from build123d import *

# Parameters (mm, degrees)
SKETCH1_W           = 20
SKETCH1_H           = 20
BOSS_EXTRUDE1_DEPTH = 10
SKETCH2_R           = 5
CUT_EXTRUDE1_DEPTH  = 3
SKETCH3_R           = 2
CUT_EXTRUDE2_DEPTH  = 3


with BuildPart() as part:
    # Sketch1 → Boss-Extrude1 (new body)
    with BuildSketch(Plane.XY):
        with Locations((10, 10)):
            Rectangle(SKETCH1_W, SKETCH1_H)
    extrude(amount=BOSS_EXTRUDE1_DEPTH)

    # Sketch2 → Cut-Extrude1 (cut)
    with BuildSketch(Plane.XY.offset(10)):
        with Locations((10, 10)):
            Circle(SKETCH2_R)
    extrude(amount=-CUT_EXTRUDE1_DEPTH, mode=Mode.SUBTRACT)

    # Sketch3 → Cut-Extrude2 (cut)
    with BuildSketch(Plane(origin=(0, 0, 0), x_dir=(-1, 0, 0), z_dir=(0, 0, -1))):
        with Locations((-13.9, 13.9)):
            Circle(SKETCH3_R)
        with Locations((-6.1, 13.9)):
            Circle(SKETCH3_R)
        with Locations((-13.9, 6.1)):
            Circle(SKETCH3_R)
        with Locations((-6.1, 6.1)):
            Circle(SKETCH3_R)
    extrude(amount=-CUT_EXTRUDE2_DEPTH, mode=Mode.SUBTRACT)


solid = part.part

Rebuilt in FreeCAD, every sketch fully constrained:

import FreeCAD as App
import Part
import Sketcher
from FreeCAD import Vector
Q = App.Units.Quantity


def add_polygon(sketch, points):
    """Adds a closed chain of lines whose ends are joined by coincident constraints."""
    first, n = sketch.GeometryCount, len(points)
    for a, b in zip(points, points[1:] + points[:1]):
        sketch.addGeometry(Part.LineSegment(App.Vector(*a, 0), App.Vector(*b, 0)), False)
    for i in range(n):
        sketch.addConstraint(Sketcher.Constraint("Coincident", first + i, 2, first + (i + 1) % n, 1))

doc = App.newDocument("Part")
body = doc.addObject("PartDesign::Body", "Body")

sketch1 = body.newObject("Sketcher::SketchObject", "Sketch")
sketch1.AttachmentSupport = (doc.getObject("XY_Plane"), [""])
sketch1.MapMode = "FlatFace"
add_polygon(sketch1, [(0, 20), (0, 0), (20, 0), (20, 20)])
sketch1.addConstraint(Sketcher.Constraint("Vertical", 0))
sketch1.addConstraint(Sketcher.Constraint("Horizontal", 1))
sketch1.addConstraint(Sketcher.Constraint("Vertical", 2))
sketch1.addConstraint(Sketcher.Constraint("Horizontal", 3))
sketch1.addConstraint(Sketcher.Constraint("Coincident", 0, 2, -1, 1))
sketch1.addConstraint(Sketcher.Constraint("Equal", 3, 0))
sketch1.addConstraint(Sketcher.Constraint("DistanceX", 1, 1, 1, 2, Q("20 mm")))
pad1 = body.newObject("PartDesign::Pad", "Pad")
pad1.Profile = sketch1
pad1.Length = 10

sketch2 = body.newObject("Sketcher::SketchObject", "Sketch001")
sketch2.AttachmentSupport = (doc.getObject("XY_Plane"), [""])
sketch2.MapMode = "FlatFace"
sketch2.AttachmentOffset = App.Placement(Vector(0, 0, 10), App.Rotation())
sketch2.addGeometry(Part.Circle(Vector(10, 10, 0), Vector(0, 0, 1), 5), False)
sketch2.addConstraint(Sketcher.Constraint("Diameter", 0, Q("10 mm")))
sketch2.addConstraint(Sketcher.Constraint("DistanceX", -1, 1, 0, 3, Q("10 mm")))
sketch2.addConstraint(Sketcher.Constraint("DistanceY", -1, 1, 0, 3, Q("10 mm")))
pocket1 = body.newObject("PartDesign::Pocket", "Pocket")
pocket1.Profile = sketch2
pocket1.Length = 3

sketch3 = body.newObject("Sketcher::SketchObject", "Sketch002")
sketch3.AttachmentSupport = (doc.getObject("XY_Plane"), [""])
sketch3.MapMode = "FlatFace"
sketch3.addGeometry(Part.Circle(Vector(13.9, 13.9, 0), Vector(0, 0, 1), 2), False)
sketch3.addGeometry(Part.Circle(Vector(6.1, 13.9, 0), Vector(0, 0, 1), 2), False)
sketch3.addGeometry(Part.Circle(Vector(13.9, 6.1, 0), Vector(0, 0, 1), 2), False)
sketch3.addGeometry(Part.Circle(Vector(6.1, 6.1, 0), Vector(0, 0, 1), 2), False)
sketch3.addConstraint(Sketcher.Constraint("Equal", 0, 1))
sketch3.addConstraint(Sketcher.Constraint("Equal", 1, 2))
sketch3.addConstraint(Sketcher.Constraint("Equal", 2, 3))
sketch3.addConstraint(Sketcher.Constraint("Horizontal", 0, 3, 1, 3))
sketch3.addConstraint(Sketcher.Constraint("Horizontal", 2, 3, 3, 3))
sketch3.addConstraint(Sketcher.Constraint("Vertical", 0, 3, 2, 3))
sketch3.addConstraint(Sketcher.Constraint("Vertical", 1, 3, 3, 3))
sketch3.addConstraint(Sketcher.Constraint("Diameter", 0, Q("4 mm")))
sketch3.addConstraint(Sketcher.Constraint("DistanceX", -1, 1, 0, 3, Q("13.9 mm")))
sketch3.addConstraint(Sketcher.Constraint("DistanceY", -1, 1, 0, 3, Q("13.9 mm")))
sketch3.addConstraint(Sketcher.Constraint("DistanceX", -1, 1, 1, 3, Q("6.1 mm")))
sketch3.addConstraint(Sketcher.Constraint("DistanceY", -1, 1, 2, 3, Q("6.1 mm")))
pocket2 = body.newObject("PartDesign::Pocket", "Pocket001")
pocket2.Profile = sketch3
pocket2.Length = 3
pocket2.Reversed = True

doc.recompute()
